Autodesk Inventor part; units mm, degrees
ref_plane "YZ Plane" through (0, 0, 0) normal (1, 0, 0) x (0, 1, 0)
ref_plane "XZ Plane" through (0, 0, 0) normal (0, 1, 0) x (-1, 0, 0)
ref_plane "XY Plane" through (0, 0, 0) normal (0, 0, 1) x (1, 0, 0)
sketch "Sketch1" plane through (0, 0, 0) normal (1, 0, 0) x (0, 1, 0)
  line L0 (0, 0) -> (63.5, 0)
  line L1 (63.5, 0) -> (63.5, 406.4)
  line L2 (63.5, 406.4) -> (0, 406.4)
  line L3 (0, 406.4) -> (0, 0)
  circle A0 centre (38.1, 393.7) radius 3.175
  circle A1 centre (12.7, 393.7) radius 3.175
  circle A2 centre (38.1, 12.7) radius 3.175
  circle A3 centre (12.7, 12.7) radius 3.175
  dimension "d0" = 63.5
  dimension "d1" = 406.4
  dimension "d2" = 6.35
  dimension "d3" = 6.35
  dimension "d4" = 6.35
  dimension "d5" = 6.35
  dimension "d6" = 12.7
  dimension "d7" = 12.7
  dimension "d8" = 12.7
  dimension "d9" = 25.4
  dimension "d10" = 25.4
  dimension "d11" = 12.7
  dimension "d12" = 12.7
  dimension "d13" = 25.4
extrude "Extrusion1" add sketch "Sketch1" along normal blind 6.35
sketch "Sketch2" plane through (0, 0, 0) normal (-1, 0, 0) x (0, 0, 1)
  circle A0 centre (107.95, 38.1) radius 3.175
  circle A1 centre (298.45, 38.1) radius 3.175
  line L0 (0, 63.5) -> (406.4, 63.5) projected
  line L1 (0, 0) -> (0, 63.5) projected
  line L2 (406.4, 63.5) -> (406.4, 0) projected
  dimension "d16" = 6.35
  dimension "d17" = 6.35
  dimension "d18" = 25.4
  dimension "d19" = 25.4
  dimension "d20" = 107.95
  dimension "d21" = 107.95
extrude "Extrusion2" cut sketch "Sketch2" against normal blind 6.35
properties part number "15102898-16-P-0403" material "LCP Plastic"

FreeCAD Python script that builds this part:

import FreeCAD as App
import Part
import Sketcher
from FreeCAD import Vector
Q = App.Units.Quantity

doc = App.newDocument("Part")
body = doc.addObject("PartDesign::Body", "Body")

# Sketch on YZ plane
sketch1 = body.newObject("Sketcher::SketchObject", "Sketch")
sketch1.AttachmentSupport = (doc.getObject("YZ_Plane"), [""])
sketch1.MapMode = "FlatFace"
sketch1.addGeometry([
    Part.LineSegment(Vector(0, 406.4, 0), Vector(0, 0, 0)),  # 0
    Part.LineSegment(Vector(0, 0, 0), Vector(63.5, 0, 0)),  # 1
    Part.LineSegment(Vector(63.5, 0, 0), Vector(63.5, 406.4, 0)),  # 2
    Part.LineSegment(Vector(63.5, 406.4, 0), Vector(0, 406.4, 0)),  # 3
    Part.Circle(Vector(12.7, 12.7, 0), Vector(0, 0, 1), 3.2),  # 4
    Part.Circle(Vector(38.1, 12.7, 0), Vector(0, 0, 1), 3.2),  # 5
    Part.Circle(Vector(12.7, 393.7, 0), Vector(0, 0, 1), 3.2),  # 6
    Part.Circle(Vector(38.1, 393.7, 0), Vector(0, 0, 1), 3.2),  # 7
], False)
sketch1.addConstraint([
    Sketcher.Constraint("Coincident", 0, 2, 1, 1),
    Sketcher.Constraint("Coincident", 1, 2, 2, 1),
    Sketcher.Constraint("Coincident", 2, 2, 3, 1),
    Sketcher.Constraint("Coincident", 3, 2, 0, 1),
    Sketcher.Constraint("Vertical", 0),
    Sketcher.Constraint("Horizontal", 1),
    Sketcher.Constraint("Vertical", 2),
    Sketcher.Constraint("Horizontal", 3),
    Sketcher.Constraint("Coincident", 0, 2, -1, 1),
    Sketcher.Constraint("Equal", 4, 5),
    Sketcher.Constraint("Equal", 5, 6),
    Sketcher.Constraint("Equal", 6, 7),
    Sketcher.Constraint("Horizontal", 4, 3, 5, 3),
    Sketcher.Constraint("Horizontal", 6, 3, 7, 3),
    Sketcher.Constraint("Vertical", 4, 3, 6, 3),
    Sketcher.Constraint("Vertical", 5, 3, 7, 3),
    Sketcher.Constraint("Diameter", 4, Q("0.25 in")),
    Sketcher.Constraint("DistanceY", 0, 2, 0, 1, Q("16 in")),
    Sketcher.Constraint("DistanceX", 1, 1, 1, 2, Q("2.5 in")),
    Sketcher.Constraint("DistanceX", 4, 3, 5, 3, Q("1 in")),
    Sketcher.Constraint("DistanceX", 5, 3, 1, 2, Q("1 in")),
    Sketcher.Constraint("DistanceY", -1, 1, 4, 3, Q("0.5 in")),
    Sketcher.Constraint("DistanceY", 7, 3, 2, 2, Q("0.5 in")),
])
pad1 = body.newObject("PartDesign::Pad", "Pad")
pad1.Profile = sketch1
pad1.Length = Q("0.25 in")

# Sketch on YZ plane
sketch2 = body.newObject("Sketcher::SketchObject", "Sketch001")
sketch2.AttachmentSupport = (doc.getObject("YZ_Plane"), [""])
sketch2.MapMode = "FlatFace"
sketch2.addGeometry([
    Part.Circle(Vector(38.1, 108, 0), Vector(0, 0, 1), 3.2),
    Part.Circle(Vector(38.1, 298.4, 0), Vector(0, 0, 1), 3.2),
], False)
sketch2.addConstraint([
    Sketcher.Constraint("Equal", 0, 1),
    Sketcher.Constraint("Vertical", 0, 3, 1, 3),
    Sketcher.Constraint("Diameter", 0, Q("0.25 in")),
    Sketcher.Constraint("DistanceY", -1, 1, 0, 3, Q("4.25 in")),
    Sketcher.Constraint("DistanceX", -1, 1, 0, 3, Q("1.5 in")),
    Sketcher.Constraint("DistanceY", 0, 3, 1, 3, Q("7.5 in")),
])
pocket1 = body.newObject("PartDesign::Pocket", "Pocket")
pocket1.Profile = sketch2
pocket1.Length = Q("0.25 in")
pocket1.Reversed = True

doc.recompute()
